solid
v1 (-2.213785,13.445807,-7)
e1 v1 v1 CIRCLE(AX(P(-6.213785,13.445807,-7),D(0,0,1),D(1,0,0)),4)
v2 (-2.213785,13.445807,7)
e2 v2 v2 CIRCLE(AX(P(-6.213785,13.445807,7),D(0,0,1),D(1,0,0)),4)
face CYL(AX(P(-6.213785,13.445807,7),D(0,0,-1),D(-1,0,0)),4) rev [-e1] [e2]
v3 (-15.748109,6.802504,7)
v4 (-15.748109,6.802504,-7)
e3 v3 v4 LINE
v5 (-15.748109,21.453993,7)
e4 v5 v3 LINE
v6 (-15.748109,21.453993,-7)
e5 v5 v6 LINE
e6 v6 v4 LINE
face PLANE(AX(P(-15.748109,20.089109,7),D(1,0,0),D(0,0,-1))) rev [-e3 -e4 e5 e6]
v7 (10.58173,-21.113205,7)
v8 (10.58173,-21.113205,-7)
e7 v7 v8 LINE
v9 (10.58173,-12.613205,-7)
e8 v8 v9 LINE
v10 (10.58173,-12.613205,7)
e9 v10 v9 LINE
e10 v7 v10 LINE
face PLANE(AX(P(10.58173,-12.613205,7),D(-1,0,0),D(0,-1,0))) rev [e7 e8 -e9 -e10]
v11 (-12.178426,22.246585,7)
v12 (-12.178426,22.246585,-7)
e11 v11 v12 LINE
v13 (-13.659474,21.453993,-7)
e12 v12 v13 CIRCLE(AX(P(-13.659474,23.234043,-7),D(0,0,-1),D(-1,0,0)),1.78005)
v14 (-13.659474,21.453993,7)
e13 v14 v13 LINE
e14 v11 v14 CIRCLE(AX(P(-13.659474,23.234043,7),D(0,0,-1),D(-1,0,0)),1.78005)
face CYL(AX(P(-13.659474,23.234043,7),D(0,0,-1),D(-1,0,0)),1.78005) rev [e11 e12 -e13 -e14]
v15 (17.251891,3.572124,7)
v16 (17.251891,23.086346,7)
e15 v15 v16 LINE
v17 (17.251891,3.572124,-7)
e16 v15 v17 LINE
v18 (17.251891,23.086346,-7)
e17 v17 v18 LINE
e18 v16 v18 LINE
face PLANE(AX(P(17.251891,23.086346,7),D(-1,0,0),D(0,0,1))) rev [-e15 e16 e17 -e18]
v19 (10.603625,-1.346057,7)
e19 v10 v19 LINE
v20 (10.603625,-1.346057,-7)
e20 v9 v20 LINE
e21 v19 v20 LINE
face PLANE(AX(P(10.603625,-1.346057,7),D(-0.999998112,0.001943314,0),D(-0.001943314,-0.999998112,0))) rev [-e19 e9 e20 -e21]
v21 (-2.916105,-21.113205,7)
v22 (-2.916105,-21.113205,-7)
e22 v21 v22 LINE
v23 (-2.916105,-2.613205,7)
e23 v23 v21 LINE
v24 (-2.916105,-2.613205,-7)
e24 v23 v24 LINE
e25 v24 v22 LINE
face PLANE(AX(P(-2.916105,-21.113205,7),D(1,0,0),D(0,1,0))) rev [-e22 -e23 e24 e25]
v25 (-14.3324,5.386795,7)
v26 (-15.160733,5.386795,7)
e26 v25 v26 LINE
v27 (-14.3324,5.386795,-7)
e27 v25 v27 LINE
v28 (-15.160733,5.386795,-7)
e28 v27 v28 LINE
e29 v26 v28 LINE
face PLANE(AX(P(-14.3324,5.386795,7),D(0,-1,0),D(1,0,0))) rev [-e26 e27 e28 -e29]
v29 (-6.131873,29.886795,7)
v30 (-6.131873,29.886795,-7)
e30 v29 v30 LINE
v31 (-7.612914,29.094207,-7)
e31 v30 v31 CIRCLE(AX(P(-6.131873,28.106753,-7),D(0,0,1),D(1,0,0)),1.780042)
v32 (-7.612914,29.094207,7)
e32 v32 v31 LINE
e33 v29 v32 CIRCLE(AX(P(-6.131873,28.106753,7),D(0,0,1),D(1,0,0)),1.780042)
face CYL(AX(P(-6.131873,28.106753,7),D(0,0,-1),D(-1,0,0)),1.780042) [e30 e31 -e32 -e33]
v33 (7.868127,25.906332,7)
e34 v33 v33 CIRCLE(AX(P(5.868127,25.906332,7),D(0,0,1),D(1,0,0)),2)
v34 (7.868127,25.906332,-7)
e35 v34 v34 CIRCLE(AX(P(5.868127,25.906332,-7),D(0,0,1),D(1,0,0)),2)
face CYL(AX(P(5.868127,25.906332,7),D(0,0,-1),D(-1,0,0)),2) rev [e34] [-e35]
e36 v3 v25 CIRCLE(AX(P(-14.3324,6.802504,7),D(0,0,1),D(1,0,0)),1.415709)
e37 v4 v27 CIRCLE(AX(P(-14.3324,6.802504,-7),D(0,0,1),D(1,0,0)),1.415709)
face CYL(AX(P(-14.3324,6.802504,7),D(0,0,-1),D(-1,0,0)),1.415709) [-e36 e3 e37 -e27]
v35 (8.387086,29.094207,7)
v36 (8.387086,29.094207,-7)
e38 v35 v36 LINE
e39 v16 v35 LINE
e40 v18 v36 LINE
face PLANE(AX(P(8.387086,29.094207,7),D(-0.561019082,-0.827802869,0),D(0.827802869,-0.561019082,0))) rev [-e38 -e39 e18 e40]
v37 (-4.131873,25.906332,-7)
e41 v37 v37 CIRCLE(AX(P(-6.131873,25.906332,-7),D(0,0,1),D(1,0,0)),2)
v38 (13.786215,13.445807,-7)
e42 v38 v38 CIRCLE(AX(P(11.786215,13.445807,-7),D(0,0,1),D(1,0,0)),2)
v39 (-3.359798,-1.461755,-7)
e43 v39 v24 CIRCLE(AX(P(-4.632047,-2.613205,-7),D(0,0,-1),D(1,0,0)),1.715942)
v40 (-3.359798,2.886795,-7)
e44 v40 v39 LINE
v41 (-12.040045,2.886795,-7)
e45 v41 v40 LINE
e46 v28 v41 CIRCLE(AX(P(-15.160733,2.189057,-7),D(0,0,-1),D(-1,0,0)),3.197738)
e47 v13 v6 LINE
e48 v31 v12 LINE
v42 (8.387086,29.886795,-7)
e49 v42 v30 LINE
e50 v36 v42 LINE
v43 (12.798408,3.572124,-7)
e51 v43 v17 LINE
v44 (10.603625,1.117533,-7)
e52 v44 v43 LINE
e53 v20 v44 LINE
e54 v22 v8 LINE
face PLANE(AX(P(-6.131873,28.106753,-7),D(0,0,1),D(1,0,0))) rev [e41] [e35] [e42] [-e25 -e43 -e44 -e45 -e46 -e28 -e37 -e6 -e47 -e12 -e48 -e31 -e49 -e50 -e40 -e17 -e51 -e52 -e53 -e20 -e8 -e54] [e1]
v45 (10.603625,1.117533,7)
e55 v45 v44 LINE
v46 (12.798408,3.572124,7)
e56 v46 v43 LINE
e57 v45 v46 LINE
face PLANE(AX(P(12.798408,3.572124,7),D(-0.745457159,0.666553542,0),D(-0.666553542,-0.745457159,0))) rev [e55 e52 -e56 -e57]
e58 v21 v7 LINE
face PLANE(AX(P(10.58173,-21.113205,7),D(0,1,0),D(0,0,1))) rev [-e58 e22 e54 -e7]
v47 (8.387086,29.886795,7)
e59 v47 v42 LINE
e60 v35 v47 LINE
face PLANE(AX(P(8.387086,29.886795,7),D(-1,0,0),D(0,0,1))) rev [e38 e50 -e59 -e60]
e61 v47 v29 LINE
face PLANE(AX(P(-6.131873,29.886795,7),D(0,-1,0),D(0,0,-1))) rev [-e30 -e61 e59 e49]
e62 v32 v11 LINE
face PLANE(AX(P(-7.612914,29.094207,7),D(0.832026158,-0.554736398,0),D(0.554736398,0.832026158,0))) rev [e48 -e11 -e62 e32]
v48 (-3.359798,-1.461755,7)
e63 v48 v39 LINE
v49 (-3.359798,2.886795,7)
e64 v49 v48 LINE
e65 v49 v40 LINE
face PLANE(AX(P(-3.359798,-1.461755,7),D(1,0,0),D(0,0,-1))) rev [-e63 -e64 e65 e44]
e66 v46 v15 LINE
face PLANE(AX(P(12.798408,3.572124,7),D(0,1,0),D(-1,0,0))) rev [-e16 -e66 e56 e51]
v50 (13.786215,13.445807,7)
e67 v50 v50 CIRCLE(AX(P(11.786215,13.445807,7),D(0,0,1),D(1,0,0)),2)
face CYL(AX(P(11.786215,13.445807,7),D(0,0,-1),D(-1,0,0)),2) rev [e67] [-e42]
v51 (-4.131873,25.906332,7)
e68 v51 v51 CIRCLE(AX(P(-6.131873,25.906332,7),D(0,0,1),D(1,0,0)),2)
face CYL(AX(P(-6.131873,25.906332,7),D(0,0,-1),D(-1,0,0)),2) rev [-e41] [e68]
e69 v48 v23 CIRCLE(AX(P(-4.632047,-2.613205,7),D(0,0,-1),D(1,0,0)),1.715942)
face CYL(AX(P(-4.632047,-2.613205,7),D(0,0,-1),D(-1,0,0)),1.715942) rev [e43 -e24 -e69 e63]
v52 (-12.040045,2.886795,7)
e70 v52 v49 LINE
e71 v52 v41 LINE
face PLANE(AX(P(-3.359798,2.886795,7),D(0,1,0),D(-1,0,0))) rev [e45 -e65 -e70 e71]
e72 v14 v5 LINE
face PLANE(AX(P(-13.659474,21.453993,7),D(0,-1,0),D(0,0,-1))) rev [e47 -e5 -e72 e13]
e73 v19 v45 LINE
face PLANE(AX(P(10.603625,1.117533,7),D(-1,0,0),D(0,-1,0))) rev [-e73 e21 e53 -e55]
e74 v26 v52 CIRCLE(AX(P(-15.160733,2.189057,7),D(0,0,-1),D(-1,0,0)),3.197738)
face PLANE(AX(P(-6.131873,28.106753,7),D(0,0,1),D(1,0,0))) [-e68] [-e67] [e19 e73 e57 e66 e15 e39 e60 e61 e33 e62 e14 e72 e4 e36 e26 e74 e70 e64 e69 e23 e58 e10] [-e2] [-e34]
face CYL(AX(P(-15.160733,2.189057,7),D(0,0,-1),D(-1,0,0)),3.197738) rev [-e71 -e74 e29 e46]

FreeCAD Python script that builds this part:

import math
import FreeCAD as App
import Part
import Sketcher

doc = App.newDocument("Part")
body = doc.addObject("PartDesign::Body", "Body")

# Sketch on XY plane
sketch1 = body.newObject("Sketcher::SketchObject", "Sketch")
sketch1.AttachmentSupport = (doc.getObject("XY_Plane"), [""])
sketch1.MapMode = "FlatFace"
sketch1.addGeometry([
    Part.LineSegment(App.Vector(8.4, 29.9, 0), App.Vector(-6.1, 29.9, 0)),  # 0
    Part.ArcOfCircle(Part.Circle(App.Vector(-6.1, 28.1, 0), App.Vector(0, 0, 1), 1.8), math.radians(90), math.radians(146)),  # 1
    Part.LineSegment(App.Vector(-7.6, 29.1, 0), App.Vector(-12.2, 22.2, 0)),  # 2
    Part.ArcOfCircle(Part.Circle(App.Vector(-13.7, 23.2, 0), App.Vector(0, 0, 1), 1.8), math.radians(-90), math.radians(-34)),  # 3
    Part.LineSegment(App.Vector(-13.7, 21.5, 0), App.Vector(-15.7, 21.5, 0)),  # 4
    Part.LineSegment(App.Vector(-15.7, 21.5, 0), App.Vector(-15.7, 6.8, 0)),  # 5
    Part.ArcOfCircle(Part.Circle(App.Vector(-14.3, 6.8, 0), App.Vector(0, 0, 1), 1.4), math.radians(180), math.radians(270)),  # 6
    Part.LineSegment(App.Vector(-14.3, 5.4, 0), App.Vector(-15.2, 5.4, 0)),  # 7
    Part.ArcOfCircle(Part.Circle(App.Vector(-15.2, 2.2, 0), App.Vector(0, 0, 1), 3.2), math.radians(13), math.radians(90)),  # 8
    Part.LineSegment(App.Vector(-12, 2.9, 0), App.Vector(-3.4, 2.9, 0)),  # 9
    Part.LineSegment(App.Vector(-3.4, 2.9, 0), App.Vector(-3.4, -1.5, 0)),  # 10
    Part.ArcOfCircle(Part.Circle(App.Vector(-4.6, -2.6, 0), App.Vector(0, 0, 1), 1.7), math.radians(0), math.radians(42)),  # 11
    Part.LineSegment(App.Vector(-2.9, -2.6, 0), App.Vector(-2.9, -21.1, 0)),  # 12
    Part.LineSegment(App.Vector(-2.9, -21.1, 0), App.Vector(10.6, -21.1, 0)),  # 13
    Part.LineSegment(App.Vector(10.6, -21.1, 0), App.Vector(10.6, -12.6, 0)),  # 14
    Part.LineSegment(App.Vector(10.6, -12.6, 0), App.Vector(10.6, -1.3, 0)),  # 15
    Part.LineSegment(App.Vector(10.6, -1.3, 0), App.Vector(10.6, 1.1, 0)),  # 16
    Part.LineSegment(App.Vector(10.6, 1.1, 0), App.Vector(12.8, 3.6, 0)),  # 17
    Part.LineSegment(App.Vector(12.8, 3.6, 0), App.Vector(17.3, 3.6, 0)),  # 18
    Part.LineSegment(App.Vector(17.3, 3.6, 0), App.Vector(17.3, 23.1, 0)),  # 19
    Part.LineSegment(App.Vector(17.3, 23.1, 0), App.Vector(8.4, 29.1, 0)),  # 20
    Part.LineSegment(App.Vector(8.4, 29.1, 0), App.Vector(8.4, 29.9, 0)),  # 21
    Part.Circle(App.Vector(11.8, 13.4, 0), App.Vector(0, 0, 1), 2),  # 22
    Part.Circle(App.Vector(-6.2, 13.4, 0), App.Vector(0, 0, 1), 4),  # 23
    Part.Circle(App.Vector(5.9, 25.9, 0), App.Vector(0, 0, 1), 2),  # 24
    Part.Circle(App.Vector(-6.1, 25.9, 0), App.Vector(0, 0, 1), 2),  # 25
], False)
sketch1.addConstraint([
    Sketcher.Constraint("Tangent", 0, 2, 1, 1),
    Sketcher.Constraint("Tangent", 1, 2, 2, 1),
    Sketcher.Constraint("Tangent", 2, 2, 3, 2),
    Sketcher.Constraint("Tangent", 3, 1, 4, 1),
    Sketcher.Constraint("Coincident", 4, 2, 5, 1),
    Sketcher.Constraint("Tangent", 5, 2, 6, 1),
    Sketcher.Constraint("Tangent", 6, 2, 7, 1),
    Sketcher.Constraint("Tangent", 7, 2, 8, 2),
    Sketcher.Constraint("Coincident", 8, 1, 9, 1),
    Sketcher.Constraint("Coincident", 9, 2, 10, 1),
    Sketcher.Constraint("Coincident", 10, 2, 11, 2),
    Sketcher.Constraint("Tangent", 11, 1, 12, 1),
    Sketcher.Constraint("Coincident", 12, 2, 13, 1),
    Sketcher.Constraint("Coincident", 13, 2, 14, 1),
    Sketcher.Constraint("Coincident", 14, 2, 15, 1),
    Sketcher.Constraint("Coincident", 15, 2, 16, 1),
    Sketcher.Constraint("Coincident", 16, 2, 17, 1),
    Sketcher.Constraint("Coincident", 17, 2, 18, 1),
    Sketcher.Constraint("Coincident", 18, 2, 19, 1),
    Sketcher.Constraint("Coincident", 19, 2, 20, 1),
    Sketcher.Constraint("Coincident", 20, 2, 21, 1),
    Sketcher.Constraint("Coincident", 21, 2, 0, 1),
    Sketcher.Constraint("Horizontal", 0),
    Sketcher.Constraint("Horizontal", 4),
    Sketcher.Constraint("Vertical", 5),
    Sketcher.Constraint("Horizontal", 7),
    Sketcher.Constraint("Horizontal", 9),
    Sketcher.Constraint("Vertical", 10),
    Sketcher.Constraint("Vertical", 12),
    Sketcher.Constraint("Horizontal", 13),
    Sketcher.Constraint("Vertical", 14),
    Sketcher.Constraint("Vertical", 16),
    Sketcher.Constraint("Horizontal", 18),
    Sketcher.Constraint("Vertical", 19),
    Sketcher.Constraint("Vertical", 21),
    Sketcher.Constraint("Equal", 22, 24),
    Sketcher.Constraint("Equal", 24, 25),
    Sketcher.Constraint("Horizontal", 22, 3, 23, 3),
    Sketcher.Constraint("Horizontal", 24, 3, 25, 3),
    Sketcher.Constraint("Horizontal", 1, 2, 20, 2),
    Sketcher.Constraint("Vertical", 1, 3, 25, 3),
    Sketcher.Constraint("Diameter", 22, 4.0),
    Sketcher.Constraint("Diameter", 23, 8.0),
    Sketcher.Constraint("DistanceY", 12, 2, 12, 1, 18.5),
    Sketcher.Constraint("DistanceY", 14, 1, 14, 2, 8.5),
    Sketcher.Constraint("DistanceX", 1, 3, 24, 3, 12.0),
    Sketcher.Constraint("DistanceY", 11, 3, 6, 2, 8.0),
    Sketcher.Constraint("DistanceY", 12, 2, 9, 2, 24.0),
    Sketcher.Constraint("Radius", 1, 1.780042),
    Sketcher.Constraint("Radius", 3, 1.78005),
    Sketcher.Constraint("Radius", 6, 1.415709),
    Sketcher.Constraint("Radius", 8, 3.197738),
    Sketcher.Constraint("Radius", 11, 1.715942),
    Sketcher.Constraint("DistanceX", 0, 2, 0, 1, 14.518959),
    Sketcher.Constraint("DistanceY", 5, 2, 5, 1, 14.651489),
    Sketcher.Constraint("DistanceY", 10, 2, 10, 1, 4.34855),
    Sketcher.Constraint("DistanceY", 16, 1, 16, 2, 2.463591),
    Sketcher.Constraint("DistanceY", 19, 1, 19, 2, 19.514222),
    Sketcher.Constraint("DistanceX", 6, 3, -1, 1, 14.3324),
    Sketcher.Constraint("DistanceX", 3, 3, 1, 3, 7.527602),
    Sketcher.Constraint("Distance", 15, 11.267169),
    Sketcher.Constraint("DistanceX", 4, 2, 4, 1, 2.088635),
    Sketcher.Constraint("DistanceX", 7, 2, 7, 1, 0.828333),
    Sketcher.Constraint("DistanceX", 9, 1, 9, 2, 8.680248),
    Sketcher.Constraint("DistanceX", 13, 1, 13, 2, 13.497835),
    Sketcher.Constraint("DistanceX", 18, 1, 18, 2, 4.453483),
    Sketcher.Constraint("DistanceY", 21, 1, 21, 2, 0.792588),
    Sketcher.Constraint("DistanceX", -1, 1, 18, 2, 17.251891),
    Sketcher.Constraint("DistanceY", 11, 3, 22, 3, 16.059012),
    Sketcher.Constraint("DistanceX", 1, 3, 22, 3, 17.918088),
    Sketcher.Constraint("DistanceX", 3, 3, 23, 3, 7.44569),
    Sketcher.Constraint("DistanceY", 24, 3, 1, 3, 2.200421),
    Sketcher.Constraint("DistanceX", 11, 1, 15, 2, 13.519731),
    Sketcher.Constraint("DistanceY", 16, 2, 17, 2, 2.454591),
    Sketcher.Constraint("DistanceY", -1, 1, 1, 3, 28.106753),
])
pad1 = body.newObject("PartDesign::Pad", "Pad")
pad1.Profile = sketch1
pad1.Length = 14
pad1.Midplane = True

doc.recompute()
